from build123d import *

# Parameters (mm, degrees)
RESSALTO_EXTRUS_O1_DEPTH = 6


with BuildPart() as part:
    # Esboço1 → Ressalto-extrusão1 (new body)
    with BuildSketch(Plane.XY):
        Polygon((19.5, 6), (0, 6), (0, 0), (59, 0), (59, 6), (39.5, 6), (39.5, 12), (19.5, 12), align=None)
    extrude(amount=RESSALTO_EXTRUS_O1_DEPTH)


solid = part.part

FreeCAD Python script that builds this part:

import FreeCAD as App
import Part
import Sketcher

doc = App.newDocument("Part")
params = doc.addObject("Spreadsheet::Sheet", "Params")
for row, (alias, value) in enumerate([
    ("sketch1_width", "59 mm"),
    ("sketch1_width2", "20 mm"),
    ("sketch1_height", "6 mm"),
    ("pad1_length", "6 mm"),
], start=1):
    params.set(f"A{row}", alias)
    params.set(f"B{row}", "=" + value)
    params.setAlias(f"B{row}", alias)

body = doc.addObject("PartDesign::Body", "Body")

# Sketch on XY plane
sketch1 = body.newObject("Sketcher::SketchObject", "Sketch")
sketch1.AttachmentSupport = (doc.getObject("XY_Plane"), [""])
sketch1.MapMode = "FlatFace"
sketch1.addGeometry([
    Part.LineSegment(App.Vector(20, 6, 0), App.Vector(0, 6, 0)),  # 0
    Part.LineSegment(App.Vector(0, 6, 0), App.Vector(0, 0, 0)),  # 1
    Part.LineSegment(App.Vector(0, 0, 0), App.Vector(59, 0, 0)),  # 2
    Part.LineSegment(App.Vector(59, 0, 0), App.Vector(59, 6, 0)),  # 3
    Part.LineSegment(App.Vector(59, 6, 0), App.Vector(40, 6, 0)),  # 4
    Part.LineSegment(App.Vector(40, 6, 0), App.Vector(40, 12, 0)),  # 5
    Part.LineSegment(App.Vector(40, 12, 0), App.Vector(20, 12, 0)),  # 6
    Part.LineSegment(App.Vector(20, 12, 0), App.Vector(20, 6, 0)),  # 7
], False)
sketch1.addConstraint([
    Sketcher.Constraint("Coincident", 0, 2, 1, 1),
    Sketcher.Constraint("Coincident", 1, 2, 2, 1),
    Sketcher.Constraint("Coincident", 2, 2, 3, 1),
    Sketcher.Constraint("Coincident", 3, 2, 4, 1),
    Sketcher.Constraint("Coincident", 4, 2, 5, 1),
    Sketcher.Constraint("Coincident", 5, 2, 6, 1),
    Sketcher.Constraint("Coincident", 6, 2, 7, 1),
    Sketcher.Constraint("Coincident", 7, 2, 0, 1),
    Sketcher.Constraint("Horizontal", 0),
    Sketcher.Constraint("Vertical", 1),
    Sketcher.Constraint("Horizontal", 2),
    Sketcher.Constraint("Vertical", 3),
    Sketcher.Constraint("Horizontal", 4),
    Sketcher.Constraint("Vertical", 5),
    Sketcher.Constraint("Horizontal", 6),
    Sketcher.Constraint("Vertical", 7),
    Sketcher.Constraint("Coincident", 1, 2, -1, 1),
    Sketcher.Constraint("Horizontal", 0, 2, 3, 2),
    Sketcher.Constraint("Equal", 0, 4),
    Sketcher.Constraint("Equal", 3, 5),
    Sketcher.Constraint("DistanceX", 2, 1, 2, 2, 59.0),
    Sketcher.Constraint("DistanceX", 6, 2, 6, 1, 20.0),
    Sketcher.Constraint("DistanceY", 1, 2, 1, 1, 6.0),
])
sketch1.setExpression("Constraints[20]", "Params.sketch1_width")
sketch1.setExpression("Constraints[21]", "Params.sketch1_width2")
sketch1.setExpression("Constraints[22]", "Params.sketch1_height")
pad1 = body.newObject("PartDesign::Pad", "Pad")
pad1.Profile = sketch1
pad1.setExpression("Length", "Params.pad1_length")

doc.recompute()
